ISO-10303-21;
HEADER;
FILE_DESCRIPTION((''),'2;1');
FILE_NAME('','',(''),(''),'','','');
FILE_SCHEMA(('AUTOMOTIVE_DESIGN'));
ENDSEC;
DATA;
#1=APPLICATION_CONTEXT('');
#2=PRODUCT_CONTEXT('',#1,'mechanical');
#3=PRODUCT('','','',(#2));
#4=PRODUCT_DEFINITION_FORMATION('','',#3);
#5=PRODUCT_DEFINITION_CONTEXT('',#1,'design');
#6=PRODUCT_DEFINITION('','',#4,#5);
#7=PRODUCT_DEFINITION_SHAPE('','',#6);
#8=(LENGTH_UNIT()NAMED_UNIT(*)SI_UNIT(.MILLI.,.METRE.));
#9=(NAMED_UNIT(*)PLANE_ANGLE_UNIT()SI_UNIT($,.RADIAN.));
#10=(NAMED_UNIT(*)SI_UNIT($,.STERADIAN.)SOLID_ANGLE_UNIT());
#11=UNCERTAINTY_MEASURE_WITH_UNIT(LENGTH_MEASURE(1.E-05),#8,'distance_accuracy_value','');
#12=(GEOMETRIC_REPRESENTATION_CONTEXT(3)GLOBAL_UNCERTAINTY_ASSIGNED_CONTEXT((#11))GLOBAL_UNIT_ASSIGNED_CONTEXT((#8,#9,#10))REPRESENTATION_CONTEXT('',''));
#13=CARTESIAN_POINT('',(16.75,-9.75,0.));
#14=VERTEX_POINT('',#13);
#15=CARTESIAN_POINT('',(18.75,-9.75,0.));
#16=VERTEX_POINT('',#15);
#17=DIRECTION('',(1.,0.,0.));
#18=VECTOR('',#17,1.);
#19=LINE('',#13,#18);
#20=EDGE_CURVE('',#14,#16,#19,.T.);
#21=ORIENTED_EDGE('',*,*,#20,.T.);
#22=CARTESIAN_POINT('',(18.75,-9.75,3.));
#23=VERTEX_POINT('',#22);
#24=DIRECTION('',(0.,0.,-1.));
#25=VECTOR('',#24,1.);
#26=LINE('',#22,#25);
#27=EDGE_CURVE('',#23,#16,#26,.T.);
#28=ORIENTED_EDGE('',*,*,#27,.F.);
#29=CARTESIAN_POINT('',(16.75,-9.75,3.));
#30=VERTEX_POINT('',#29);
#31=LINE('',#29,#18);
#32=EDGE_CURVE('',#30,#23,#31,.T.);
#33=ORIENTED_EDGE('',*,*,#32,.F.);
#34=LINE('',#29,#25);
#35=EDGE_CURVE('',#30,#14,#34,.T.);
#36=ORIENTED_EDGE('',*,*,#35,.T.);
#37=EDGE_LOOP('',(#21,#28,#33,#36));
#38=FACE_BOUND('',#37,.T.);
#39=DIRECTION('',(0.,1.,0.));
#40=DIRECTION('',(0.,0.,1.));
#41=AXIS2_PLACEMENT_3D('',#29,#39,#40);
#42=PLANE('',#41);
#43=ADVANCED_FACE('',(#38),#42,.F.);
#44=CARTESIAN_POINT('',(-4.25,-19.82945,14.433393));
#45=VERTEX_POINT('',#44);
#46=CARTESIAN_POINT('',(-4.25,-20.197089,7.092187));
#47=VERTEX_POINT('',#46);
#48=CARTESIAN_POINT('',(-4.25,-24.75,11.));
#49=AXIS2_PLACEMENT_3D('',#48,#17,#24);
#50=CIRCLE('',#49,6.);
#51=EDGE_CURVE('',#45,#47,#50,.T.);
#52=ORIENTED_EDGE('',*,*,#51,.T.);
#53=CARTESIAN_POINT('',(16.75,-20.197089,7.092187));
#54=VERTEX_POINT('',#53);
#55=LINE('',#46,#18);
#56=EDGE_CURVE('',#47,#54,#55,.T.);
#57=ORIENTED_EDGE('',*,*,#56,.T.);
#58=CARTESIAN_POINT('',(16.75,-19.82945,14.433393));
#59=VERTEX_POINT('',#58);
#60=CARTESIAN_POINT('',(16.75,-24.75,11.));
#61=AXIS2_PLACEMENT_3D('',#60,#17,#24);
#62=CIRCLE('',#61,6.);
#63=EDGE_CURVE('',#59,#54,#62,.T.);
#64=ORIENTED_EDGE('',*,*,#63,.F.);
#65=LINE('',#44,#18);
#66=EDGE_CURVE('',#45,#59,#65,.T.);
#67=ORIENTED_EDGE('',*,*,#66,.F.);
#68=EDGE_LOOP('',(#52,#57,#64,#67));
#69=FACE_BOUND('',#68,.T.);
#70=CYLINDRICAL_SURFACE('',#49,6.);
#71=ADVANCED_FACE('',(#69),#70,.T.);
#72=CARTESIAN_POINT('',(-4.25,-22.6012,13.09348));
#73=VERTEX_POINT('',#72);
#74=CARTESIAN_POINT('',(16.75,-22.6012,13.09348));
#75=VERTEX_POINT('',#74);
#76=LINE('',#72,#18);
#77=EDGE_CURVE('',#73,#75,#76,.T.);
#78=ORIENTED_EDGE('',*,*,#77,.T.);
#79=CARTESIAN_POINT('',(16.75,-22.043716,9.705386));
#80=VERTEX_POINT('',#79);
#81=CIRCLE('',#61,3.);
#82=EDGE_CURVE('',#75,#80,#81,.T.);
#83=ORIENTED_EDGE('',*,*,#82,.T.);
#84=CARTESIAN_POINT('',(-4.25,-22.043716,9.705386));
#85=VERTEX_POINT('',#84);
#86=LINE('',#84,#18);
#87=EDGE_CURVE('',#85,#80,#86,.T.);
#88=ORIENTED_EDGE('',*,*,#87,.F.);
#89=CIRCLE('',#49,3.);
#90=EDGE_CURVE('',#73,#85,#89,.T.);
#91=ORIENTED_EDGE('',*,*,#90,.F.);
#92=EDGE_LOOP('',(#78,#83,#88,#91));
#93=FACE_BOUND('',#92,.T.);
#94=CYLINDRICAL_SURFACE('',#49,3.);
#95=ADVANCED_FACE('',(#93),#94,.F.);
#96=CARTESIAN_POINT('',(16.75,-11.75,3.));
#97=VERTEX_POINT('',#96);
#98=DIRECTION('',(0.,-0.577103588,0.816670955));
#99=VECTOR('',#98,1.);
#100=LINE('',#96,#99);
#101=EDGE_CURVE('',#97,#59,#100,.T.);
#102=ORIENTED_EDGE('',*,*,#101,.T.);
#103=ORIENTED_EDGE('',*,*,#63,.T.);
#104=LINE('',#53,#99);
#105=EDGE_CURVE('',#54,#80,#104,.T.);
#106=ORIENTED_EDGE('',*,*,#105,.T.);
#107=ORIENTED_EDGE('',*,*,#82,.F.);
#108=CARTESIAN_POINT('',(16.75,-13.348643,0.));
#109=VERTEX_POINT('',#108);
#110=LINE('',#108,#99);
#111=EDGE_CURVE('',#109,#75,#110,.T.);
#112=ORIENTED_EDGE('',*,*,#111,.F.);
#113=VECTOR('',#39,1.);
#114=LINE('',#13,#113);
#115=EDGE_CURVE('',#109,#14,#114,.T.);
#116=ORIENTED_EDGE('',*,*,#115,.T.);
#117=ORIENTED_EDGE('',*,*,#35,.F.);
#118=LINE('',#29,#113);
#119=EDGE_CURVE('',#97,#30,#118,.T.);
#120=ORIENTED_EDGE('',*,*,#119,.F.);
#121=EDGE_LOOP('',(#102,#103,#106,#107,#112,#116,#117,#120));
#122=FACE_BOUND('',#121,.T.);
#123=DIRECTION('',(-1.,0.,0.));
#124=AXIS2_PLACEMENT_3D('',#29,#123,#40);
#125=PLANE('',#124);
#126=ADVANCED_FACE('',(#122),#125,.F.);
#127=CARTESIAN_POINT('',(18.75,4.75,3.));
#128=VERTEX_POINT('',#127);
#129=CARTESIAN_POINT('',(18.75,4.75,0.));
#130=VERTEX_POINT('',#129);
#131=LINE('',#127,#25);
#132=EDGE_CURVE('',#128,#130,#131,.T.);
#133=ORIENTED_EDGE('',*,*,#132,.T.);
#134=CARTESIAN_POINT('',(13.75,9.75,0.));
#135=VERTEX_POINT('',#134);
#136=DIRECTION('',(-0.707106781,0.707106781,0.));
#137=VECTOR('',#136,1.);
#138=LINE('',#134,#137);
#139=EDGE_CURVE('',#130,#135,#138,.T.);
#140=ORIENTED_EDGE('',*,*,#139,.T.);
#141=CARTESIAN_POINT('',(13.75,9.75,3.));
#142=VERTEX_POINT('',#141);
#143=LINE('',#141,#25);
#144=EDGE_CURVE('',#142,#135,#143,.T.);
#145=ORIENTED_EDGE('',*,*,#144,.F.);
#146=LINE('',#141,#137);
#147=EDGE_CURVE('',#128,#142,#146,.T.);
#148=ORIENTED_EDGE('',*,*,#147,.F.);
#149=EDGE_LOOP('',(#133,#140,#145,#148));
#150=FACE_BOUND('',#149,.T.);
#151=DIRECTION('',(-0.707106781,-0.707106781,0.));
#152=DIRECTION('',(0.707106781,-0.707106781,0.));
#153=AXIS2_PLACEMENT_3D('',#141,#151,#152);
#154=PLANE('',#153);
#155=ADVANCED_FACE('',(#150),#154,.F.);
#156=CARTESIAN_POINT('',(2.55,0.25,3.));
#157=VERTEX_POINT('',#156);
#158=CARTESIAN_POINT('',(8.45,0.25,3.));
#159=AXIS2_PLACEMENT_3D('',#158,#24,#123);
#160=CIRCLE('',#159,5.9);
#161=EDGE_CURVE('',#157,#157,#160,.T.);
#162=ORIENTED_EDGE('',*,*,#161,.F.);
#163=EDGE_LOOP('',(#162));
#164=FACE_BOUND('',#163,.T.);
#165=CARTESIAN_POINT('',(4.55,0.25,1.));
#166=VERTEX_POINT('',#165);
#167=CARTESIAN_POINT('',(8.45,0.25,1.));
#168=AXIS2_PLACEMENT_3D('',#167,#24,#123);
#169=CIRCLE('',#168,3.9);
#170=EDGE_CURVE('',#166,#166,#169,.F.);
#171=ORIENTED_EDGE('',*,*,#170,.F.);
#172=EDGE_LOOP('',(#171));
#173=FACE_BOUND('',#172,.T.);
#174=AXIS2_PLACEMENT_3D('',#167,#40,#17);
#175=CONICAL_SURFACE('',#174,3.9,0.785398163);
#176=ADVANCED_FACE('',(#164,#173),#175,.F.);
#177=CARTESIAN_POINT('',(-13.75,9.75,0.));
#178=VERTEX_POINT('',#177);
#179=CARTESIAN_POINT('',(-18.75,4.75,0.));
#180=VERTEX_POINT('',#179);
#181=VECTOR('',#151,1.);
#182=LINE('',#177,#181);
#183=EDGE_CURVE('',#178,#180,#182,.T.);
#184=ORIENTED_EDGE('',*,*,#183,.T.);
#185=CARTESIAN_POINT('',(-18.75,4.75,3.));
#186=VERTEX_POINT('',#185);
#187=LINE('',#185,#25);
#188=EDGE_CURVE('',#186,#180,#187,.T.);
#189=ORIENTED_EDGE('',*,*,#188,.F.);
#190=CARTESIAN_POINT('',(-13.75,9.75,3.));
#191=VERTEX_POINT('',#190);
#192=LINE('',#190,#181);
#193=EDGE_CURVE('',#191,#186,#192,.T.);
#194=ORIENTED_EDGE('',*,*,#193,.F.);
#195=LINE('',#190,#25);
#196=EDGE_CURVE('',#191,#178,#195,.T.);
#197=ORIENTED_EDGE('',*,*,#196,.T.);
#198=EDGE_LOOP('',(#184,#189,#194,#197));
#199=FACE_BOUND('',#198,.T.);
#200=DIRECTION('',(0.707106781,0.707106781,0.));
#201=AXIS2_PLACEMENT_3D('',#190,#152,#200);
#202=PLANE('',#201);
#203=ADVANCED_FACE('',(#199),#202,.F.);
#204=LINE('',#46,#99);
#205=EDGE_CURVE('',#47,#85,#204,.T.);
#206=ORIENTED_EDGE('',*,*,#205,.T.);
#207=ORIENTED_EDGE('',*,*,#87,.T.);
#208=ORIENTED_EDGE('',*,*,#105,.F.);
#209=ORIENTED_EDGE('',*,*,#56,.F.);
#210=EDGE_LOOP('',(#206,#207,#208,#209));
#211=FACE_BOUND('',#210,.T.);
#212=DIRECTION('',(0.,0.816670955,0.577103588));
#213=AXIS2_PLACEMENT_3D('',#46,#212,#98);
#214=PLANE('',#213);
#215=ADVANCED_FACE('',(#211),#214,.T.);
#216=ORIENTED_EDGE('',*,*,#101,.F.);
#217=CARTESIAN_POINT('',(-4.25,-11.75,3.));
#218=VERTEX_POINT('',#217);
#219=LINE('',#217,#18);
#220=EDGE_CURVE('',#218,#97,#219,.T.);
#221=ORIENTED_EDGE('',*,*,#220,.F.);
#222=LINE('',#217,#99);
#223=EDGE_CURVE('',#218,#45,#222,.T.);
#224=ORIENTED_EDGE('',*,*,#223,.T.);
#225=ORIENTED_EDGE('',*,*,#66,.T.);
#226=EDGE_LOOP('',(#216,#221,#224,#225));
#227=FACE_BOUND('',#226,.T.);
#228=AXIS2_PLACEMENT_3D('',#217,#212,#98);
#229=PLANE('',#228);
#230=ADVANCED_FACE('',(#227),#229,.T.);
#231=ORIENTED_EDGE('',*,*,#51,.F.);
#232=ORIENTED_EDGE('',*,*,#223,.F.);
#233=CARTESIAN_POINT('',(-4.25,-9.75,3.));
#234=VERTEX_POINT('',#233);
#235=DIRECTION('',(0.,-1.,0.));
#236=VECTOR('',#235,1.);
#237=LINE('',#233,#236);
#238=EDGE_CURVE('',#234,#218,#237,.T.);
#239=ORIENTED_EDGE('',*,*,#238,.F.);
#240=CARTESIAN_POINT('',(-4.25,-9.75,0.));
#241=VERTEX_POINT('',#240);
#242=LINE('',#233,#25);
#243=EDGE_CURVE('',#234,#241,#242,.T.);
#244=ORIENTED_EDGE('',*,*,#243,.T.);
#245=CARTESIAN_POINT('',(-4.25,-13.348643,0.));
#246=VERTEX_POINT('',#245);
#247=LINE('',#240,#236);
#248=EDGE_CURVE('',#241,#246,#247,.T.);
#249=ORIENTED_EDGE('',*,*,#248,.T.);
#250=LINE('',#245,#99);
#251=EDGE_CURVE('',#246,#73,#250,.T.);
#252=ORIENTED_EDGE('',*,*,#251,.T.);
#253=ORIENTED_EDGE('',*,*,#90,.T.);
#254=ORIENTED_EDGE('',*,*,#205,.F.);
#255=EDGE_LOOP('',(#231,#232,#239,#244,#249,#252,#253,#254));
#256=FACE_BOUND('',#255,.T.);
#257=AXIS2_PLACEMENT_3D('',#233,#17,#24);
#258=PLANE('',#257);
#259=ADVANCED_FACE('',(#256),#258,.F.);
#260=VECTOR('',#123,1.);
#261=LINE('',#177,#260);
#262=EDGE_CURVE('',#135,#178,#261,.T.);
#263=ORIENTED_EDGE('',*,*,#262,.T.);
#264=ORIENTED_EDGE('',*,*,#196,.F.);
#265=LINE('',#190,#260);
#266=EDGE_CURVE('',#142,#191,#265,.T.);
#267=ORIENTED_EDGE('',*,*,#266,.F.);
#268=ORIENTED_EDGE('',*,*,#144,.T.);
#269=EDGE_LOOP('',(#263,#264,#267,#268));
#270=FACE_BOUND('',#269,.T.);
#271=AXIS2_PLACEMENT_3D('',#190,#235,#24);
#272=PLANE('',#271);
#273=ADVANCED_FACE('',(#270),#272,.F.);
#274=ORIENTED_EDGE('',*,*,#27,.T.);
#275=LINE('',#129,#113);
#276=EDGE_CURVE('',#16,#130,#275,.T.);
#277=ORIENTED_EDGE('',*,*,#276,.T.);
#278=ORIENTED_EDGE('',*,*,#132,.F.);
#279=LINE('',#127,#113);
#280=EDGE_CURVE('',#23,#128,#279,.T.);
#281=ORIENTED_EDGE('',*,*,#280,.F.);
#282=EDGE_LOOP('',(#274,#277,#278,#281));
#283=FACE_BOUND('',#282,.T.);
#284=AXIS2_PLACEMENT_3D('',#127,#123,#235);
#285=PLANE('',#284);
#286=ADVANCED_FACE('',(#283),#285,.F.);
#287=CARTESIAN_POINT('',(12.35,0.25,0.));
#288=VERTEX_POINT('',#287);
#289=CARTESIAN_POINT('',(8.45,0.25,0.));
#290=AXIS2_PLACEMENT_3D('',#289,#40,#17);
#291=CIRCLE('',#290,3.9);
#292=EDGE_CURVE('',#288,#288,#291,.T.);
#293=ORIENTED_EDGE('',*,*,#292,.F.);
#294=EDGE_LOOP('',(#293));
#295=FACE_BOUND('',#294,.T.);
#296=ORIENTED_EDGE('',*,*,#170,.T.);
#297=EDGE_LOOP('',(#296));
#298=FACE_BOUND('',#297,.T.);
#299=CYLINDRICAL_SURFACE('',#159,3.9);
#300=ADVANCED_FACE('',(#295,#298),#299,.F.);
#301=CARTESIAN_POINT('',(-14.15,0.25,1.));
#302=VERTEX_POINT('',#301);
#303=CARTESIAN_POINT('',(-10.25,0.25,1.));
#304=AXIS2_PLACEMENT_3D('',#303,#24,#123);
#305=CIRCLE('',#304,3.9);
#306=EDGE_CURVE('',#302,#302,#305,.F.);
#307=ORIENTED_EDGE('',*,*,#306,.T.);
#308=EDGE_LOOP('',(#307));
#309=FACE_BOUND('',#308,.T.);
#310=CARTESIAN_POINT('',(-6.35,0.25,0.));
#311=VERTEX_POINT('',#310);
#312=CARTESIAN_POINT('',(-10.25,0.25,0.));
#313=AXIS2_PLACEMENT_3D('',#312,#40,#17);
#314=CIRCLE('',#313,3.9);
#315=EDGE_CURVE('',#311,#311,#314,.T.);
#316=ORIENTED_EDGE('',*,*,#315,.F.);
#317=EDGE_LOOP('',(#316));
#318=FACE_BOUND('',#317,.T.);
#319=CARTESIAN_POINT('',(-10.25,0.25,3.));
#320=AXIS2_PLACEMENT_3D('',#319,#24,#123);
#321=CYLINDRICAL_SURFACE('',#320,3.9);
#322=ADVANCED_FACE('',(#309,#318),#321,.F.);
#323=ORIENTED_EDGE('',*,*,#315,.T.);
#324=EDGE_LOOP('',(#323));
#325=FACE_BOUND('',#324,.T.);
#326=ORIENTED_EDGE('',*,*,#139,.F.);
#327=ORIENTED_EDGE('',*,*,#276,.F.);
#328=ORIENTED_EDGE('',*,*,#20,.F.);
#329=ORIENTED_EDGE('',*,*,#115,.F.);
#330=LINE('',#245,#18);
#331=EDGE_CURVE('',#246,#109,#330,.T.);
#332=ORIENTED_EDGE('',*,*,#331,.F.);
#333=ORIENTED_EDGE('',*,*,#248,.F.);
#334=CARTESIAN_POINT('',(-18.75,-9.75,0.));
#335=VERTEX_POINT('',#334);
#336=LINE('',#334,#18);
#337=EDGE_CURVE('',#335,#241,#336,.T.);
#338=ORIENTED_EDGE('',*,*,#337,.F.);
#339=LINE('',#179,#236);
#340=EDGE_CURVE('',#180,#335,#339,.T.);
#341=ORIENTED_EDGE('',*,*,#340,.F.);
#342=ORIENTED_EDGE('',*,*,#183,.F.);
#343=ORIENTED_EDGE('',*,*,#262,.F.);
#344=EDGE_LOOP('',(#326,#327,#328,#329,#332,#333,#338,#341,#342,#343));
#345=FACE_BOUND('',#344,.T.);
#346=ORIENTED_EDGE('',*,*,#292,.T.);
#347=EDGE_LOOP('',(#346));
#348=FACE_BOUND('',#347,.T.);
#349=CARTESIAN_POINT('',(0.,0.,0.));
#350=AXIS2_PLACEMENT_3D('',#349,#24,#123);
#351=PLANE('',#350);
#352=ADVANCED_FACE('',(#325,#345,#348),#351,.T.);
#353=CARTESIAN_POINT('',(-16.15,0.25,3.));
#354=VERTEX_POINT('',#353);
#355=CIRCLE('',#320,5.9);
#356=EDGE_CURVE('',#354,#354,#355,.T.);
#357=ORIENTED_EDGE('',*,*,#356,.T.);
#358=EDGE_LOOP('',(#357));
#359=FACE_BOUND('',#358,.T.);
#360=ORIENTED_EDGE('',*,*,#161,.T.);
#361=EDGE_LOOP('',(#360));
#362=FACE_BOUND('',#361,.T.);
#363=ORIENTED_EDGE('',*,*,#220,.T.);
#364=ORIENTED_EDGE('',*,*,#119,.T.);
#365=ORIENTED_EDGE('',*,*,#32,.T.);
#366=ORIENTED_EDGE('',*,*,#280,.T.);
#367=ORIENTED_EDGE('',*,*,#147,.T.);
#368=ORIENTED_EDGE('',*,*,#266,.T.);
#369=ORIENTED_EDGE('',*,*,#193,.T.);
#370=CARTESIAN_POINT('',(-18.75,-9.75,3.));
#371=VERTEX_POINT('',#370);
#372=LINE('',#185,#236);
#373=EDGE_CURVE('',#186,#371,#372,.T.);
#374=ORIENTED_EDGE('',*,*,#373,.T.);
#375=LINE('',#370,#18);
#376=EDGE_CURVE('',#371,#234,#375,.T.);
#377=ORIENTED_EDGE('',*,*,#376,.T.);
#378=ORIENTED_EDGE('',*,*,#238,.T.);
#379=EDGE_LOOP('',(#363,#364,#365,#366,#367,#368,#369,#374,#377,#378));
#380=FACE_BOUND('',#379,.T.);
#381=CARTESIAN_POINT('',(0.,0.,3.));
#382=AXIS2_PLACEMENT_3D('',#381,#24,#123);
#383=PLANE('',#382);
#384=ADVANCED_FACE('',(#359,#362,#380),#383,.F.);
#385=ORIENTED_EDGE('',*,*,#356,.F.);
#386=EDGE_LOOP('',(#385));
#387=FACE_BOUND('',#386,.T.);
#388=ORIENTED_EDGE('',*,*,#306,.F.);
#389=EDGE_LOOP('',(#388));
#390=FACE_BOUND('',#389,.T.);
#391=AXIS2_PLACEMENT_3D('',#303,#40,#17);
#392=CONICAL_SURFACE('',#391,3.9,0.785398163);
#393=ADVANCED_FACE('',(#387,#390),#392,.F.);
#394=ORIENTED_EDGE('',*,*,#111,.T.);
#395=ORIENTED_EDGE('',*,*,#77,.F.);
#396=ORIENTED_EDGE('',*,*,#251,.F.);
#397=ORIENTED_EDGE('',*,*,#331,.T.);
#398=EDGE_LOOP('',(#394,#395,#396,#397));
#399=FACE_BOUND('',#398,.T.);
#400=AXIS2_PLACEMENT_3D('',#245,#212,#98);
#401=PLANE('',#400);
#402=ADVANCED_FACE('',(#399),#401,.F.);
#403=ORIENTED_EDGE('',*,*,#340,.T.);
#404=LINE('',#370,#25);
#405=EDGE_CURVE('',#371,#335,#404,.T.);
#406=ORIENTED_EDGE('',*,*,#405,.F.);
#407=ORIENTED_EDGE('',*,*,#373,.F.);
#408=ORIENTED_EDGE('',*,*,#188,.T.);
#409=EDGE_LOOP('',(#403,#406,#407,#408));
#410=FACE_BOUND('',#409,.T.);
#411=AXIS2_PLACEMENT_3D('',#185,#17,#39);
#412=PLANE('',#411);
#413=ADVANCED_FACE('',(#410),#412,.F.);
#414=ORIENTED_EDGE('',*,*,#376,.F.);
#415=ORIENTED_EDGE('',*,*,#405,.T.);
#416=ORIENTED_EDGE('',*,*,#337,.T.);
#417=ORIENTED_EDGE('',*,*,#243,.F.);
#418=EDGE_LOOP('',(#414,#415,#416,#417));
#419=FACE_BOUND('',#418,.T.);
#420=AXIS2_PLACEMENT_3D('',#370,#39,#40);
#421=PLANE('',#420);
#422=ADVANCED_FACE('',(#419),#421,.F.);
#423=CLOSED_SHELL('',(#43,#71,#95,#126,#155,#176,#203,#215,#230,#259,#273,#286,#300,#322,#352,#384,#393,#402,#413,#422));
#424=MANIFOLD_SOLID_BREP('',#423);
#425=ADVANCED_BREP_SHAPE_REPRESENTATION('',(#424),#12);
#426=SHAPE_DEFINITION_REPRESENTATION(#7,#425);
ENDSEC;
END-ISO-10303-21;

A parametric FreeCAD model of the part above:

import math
import FreeCAD as App
import Part
import Sketcher
from FreeCAD import Vector


def edges_at(feature, points):
    """Names of the edges that pass closest to the given points."""
    edges = feature.Shape.Edges
    near = lambda p: min(range(len(edges)), key=lambda i: edges[i].distToShape(Part.Vertex(*p))[0])
    return sorted({f"Edge{near(p) + 1}" for p in points})

doc = App.newDocument("Part")
body = doc.addObject("PartDesign::Body", "Body")

# Sketch on XY plane
sketch1 = body.newObject("Sketcher::SketchObject", "Sketch")
sketch1.AttachmentSupport = (doc.getObject("XY_Plane"), [""])
sketch1.MapMode = "FlatFace"
sketch1.addGeometry([
    Part.LineSegment(Vector(-13.8, 9.8, 0), Vector(-18.8, 4.8, 0)),  # 0
    Part.LineSegment(Vector(-18.8, 4.8, 0), Vector(-18.8, -9.8, 0)),  # 1
    Part.LineSegment(Vector(-18.8, -9.8, 0), Vector(-4.2, -9.8, 0)),  # 2
    Part.LineSegment(Vector(-4.2, -9.8, 0), Vector(-4.2, -11.8, 0)),  # 3
    Part.LineSegment(Vector(-4.2, -11.8, 0), Vector(16.8, -11.8, 0)),  # 4
    Part.LineSegment(Vector(16.8, -11.8, 0), Vector(16.8, -9.8, 0)),  # 5
    Part.LineSegment(Vector(16.8, -9.8, 0), Vector(18.8, -9.8, 0)),  # 6
    Part.LineSegment(Vector(18.8, -9.8, 0), Vector(18.8, 4.8, 0)),  # 7
    Part.LineSegment(Vector(18.8, 4.8, 0), Vector(13.8, 9.8, 0)),  # 8
    Part.LineSegment(Vector(13.8, 9.8, 0), Vector(-13.8, 9.8, 0)),  # 9
    Part.Circle(Vector(-10.2, 0.2, 0), Vector(0, 0, 1), 3.9),  # 10
    Part.Circle(Vector(8.4, 0.2, 0), Vector(0, 0, 1), 3.9),  # 11
], False)
sketch1.addConstraint([
    Sketcher.Constraint("Coincident", 0, 2, 1, 1),
    Sketcher.Constraint("Coincident", 1, 2, 2, 1),
    Sketcher.Constraint("Coincident", 2, 2, 3, 1),
    Sketcher.Constraint("Coincident", 3, 2, 4, 1),
    Sketcher.Constraint("Coincident", 4, 2, 5, 1),
    Sketcher.Constraint("Coincident", 5, 2, 6, 1),
    Sketcher.Constraint("Coincident", 6, 2, 7, 1),
    Sketcher.Constraint("Coincident", 7, 2, 8, 1),
    Sketcher.Constraint("Coincident", 8, 2, 9, 1),
    Sketcher.Constraint("Coincident", 9, 2, 0, 1),
    Sketcher.Constraint("Vertical", 1),
    Sketcher.Constraint("Horizontal", 2),
    Sketcher.Constraint("Vertical", 3),
    Sketcher.Constraint("Horizontal", 4),
    Sketcher.Constraint("Vertical", 5),
    Sketcher.Constraint("Horizontal", 6),
    Sketcher.Constraint("Vertical", 7),
    Sketcher.Constraint("Horizontal", 9),
    Sketcher.Constraint("Equal", 10, 11),
    Sketcher.Constraint("Symmetric", 1, 2, 6, 2, -2),
    Sketcher.Constraint("Perpendicular", 0, 8),
    Sketcher.Constraint("Horizontal", 10, 3, 11, 3),
    Sketcher.Constraint("Horizontal", 0, 2, 7, 2),
    Sketcher.Constraint("Equal", 2, 1),
    Sketcher.Constraint("Equal", 6, 3),
    Sketcher.Constraint("Equal", 0, 8),
    Sketcher.Constraint("Diameter", 10, 7.8),
    Sketcher.Constraint("DistanceX", 4, 1, 4, 2, 21.0),
    Sketcher.Constraint("DistanceX", 6, 1, 6, 2, 2.0),
    Sketcher.Constraint("DistanceX", 2, 1, 2, 2, 14.5),
    Sketcher.Constraint("DistanceX", 9, 2, 9, 1, 27.5),
    Sketcher.Constraint("DistanceY", 1, 2, 10, 3, 10.0),
    Sketcher.Constraint("DistanceX", 10, 3, 2, 2, 6.0),
    Sketcher.Constraint("DistanceX", 10, 3, 11, 3, 18.7),
    Sketcher.Constraint("DistanceY", -1, 1, 10, 3, 0.25),
])
pad1 = body.newObject("PartDesign::Pad", "Pad")
pad1.Profile = sketch1
pad1.Length = 3
doc.recompute()

chamfer = body.newObject("PartDesign::Chamfer", "Chamfer")
chamfer.Base = (pad1, edges_at(pad1, [(4.55, 0.25, 3), (-14.15, 0.25, 3)]))
chamfer.Size = 2

# Sketch on YZ plane
sketch2 = body.newObject("Sketcher::SketchObject", "Sketch001")
sketch2.AttachmentSupport = (doc.getObject("YZ_Plane"), [""])
sketch2.MapMode = "FlatFace"
sketch2.addGeometry([
    Part.LineSegment(Vector(-11.8, 3, 0), Vector(-19.8, 14.4, 0)),  # 0
    Part.ArcOfCircle(Part.Circle(Vector(-24.8, 11, 0), Vector(0, 0, 1), 6), math.radians(35), math.radians(319)),  # 1
    Part.LineSegment(Vector(-20.2, 7.1, 0), Vector(-22, 9.7, 0)),  # 2
    Part.ArcOfCircle(Part.Circle(Vector(-24.8, 11, 0), Vector(0, 0, 1), 3), math.radians(44), math.radians(334)),  # 3
    Part.LineSegment(Vector(-22.6, 13.1, 0), Vector(-13.3, 0, 0)),  # 4
    Part.LineSegment(Vector(-13.3, 0, 0), Vector(-11.8, 0, 0)),  # 5
    Part.LineSegment(Vector(-11.8, 0, 0), Vector(-11.8, 3, 0)),  # 6
], False)
sketch2.addConstraint([
    Sketcher.Constraint("Coincident", 0, 2, 1, 1),
    Sketcher.Constraint("Coincident", 1, 2, 2, 1),
    Sketcher.Constraint("Coincident", 2, 2, 3, 2),
    Sketcher.Constraint("Coincident", 3, 1, 4, 1),
    Sketcher.Constraint("Coincident", 4, 2, 5, 1),
    Sketcher.Constraint("Coincident", 5, 2, 6, 1),
    Sketcher.Constraint("Coincident", 6, 2, 0, 1),
    Sketcher.Constraint("Horizontal", 5),
    Sketcher.Constraint("Vertical", 6),
    Sketcher.Constraint("Coincident", 3, 3, 1, 3),
    Sketcher.Constraint("PointOnObject", 4, 2, -1),
    Sketcher.Constraint("Parallel", 0, 2),
    Sketcher.Constraint("Parallel", 2, 4),
    Sketcher.Constraint("Radius", 1, 6.0),
    Sketcher.Constraint("Radius", 3, 3.0),
    Sketcher.Constraint("DistanceY", 6, 1, 6, 2, 3.0),
    Sketcher.Constraint("Distance", 0, 14.0),
    Sketcher.Constraint("DistanceY", -1, 1, 1, 3, 11.0),
    Sketcher.Constraint("DistanceX", 1, 3, -1, 1, 24.75),
    Sketcher.Constraint("DistanceX", 5, 2, -1, 1, 11.75),
    Sketcher.Constraint("DistanceX", 3, 1, -1, 1, 22.6012),
    Sketcher.Constraint("DistanceY", 1, 2, 2, 2, 2.613199),
])
pad2 = body.newObject("PartDesign::Pad", "Pad001")
pad2.Profile = sketch2
pad2.Type = "TwoLengths"
pad2.Length = 16.75
pad2.Length2 = 4.25

doc.recompute()
